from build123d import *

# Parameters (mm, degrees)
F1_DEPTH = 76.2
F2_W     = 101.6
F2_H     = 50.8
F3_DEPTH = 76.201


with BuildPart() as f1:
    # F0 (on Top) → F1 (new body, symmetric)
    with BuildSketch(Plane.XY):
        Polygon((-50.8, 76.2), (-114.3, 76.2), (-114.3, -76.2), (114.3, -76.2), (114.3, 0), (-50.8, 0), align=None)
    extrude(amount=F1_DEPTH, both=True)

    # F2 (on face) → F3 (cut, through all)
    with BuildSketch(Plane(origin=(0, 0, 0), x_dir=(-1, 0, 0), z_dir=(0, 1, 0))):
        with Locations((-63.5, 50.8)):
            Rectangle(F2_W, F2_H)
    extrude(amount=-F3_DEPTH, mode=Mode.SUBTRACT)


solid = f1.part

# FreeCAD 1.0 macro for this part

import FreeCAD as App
import Part
import Sketcher
from FreeCAD import Vector
Q = App.Units.Quantity


def add_polygon(sketch, points):
    """Adds a closed chain of lines whose ends are joined by coincident constraints."""
    first, n = sketch.GeometryCount, len(points)
    for a, b in zip(points, points[1:] + points[:1]):
        sketch.addGeometry(Part.LineSegment(App.Vector(*a, 0), App.Vector(*b, 0)), False)
    for i in range(n):
        sketch.addConstraint(Sketcher.Constraint("Coincident", first + i, 2, first + (i + 1) % n, 1))

doc = App.newDocument("Part")
params = doc.addObject("Spreadsheet::Sheet", "Params")
for row, (alias, value) in enumerate([
    ("sketch1_width", "9 in"),
    ("sketch1_height", "6 in"),
    ("sketch1_width2", "2.5 in"),
    ("pad1_length", "6 in"),
    ("sketch2_width", "4 in"),
    ("sketch2_height", "2 in"),
], start=1):
    params.set(f"A{row}", alias)
    params.set(f"B{row}", "=" + value)
    params.setAlias(f"B{row}", alias)

body = doc.addObject("PartDesign::Body", "Body")

sketch1 = body.newObject("Sketcher::SketchObject", "Sketch")
sketch1.AttachmentSupport = (doc.getObject("XY_Plane"), [""])
sketch1.MapMode = "FlatFace"
add_polygon(sketch1, [(-50.8, 76.2), (-114.3, 76.2), (-114.3, -76.2), (114.3, -76.2), (114.3, 0), (-50.8, 0)])
sketch1.addConstraint(Sketcher.Constraint("Horizontal", 0))
sketch1.addConstraint(Sketcher.Constraint("Vertical", 1))
sketch1.addConstraint(Sketcher.Constraint("Horizontal", 2))
sketch1.addConstraint(Sketcher.Constraint("Vertical", 3))
sketch1.addConstraint(Sketcher.Constraint("Horizontal", 4))
sketch1.addConstraint(Sketcher.Constraint("Vertical", 5))
sketch1.addConstraint(Sketcher.Constraint("Symmetric", 0, 2, 2, 2, -1, 1))
sketch1.addConstraint(Sketcher.Constraint("PointOnObject", 3, 2, -1))
sketch1.addConstraint(Sketcher.Constraint("DistanceX", 2, 1, 2, 2, Q("9 in")))
sketch1.addConstraint(Sketcher.Constraint("DistanceY", 1, 2, 1, 1, Q("6 in")))
sketch1.addConstraint(Sketcher.Constraint("DistanceX", 0, 2, 0, 1, Q("2.5 in")))
sketch1.setExpression("Constraints[14]", "Params.sketch1_width")
sketch1.setExpression("Constraints[15]", "Params.sketch1_height")
sketch1.setExpression("Constraints[16]", "Params.sketch1_width2")
pad1 = body.newObject("PartDesign::Pad", "Pad")
pad1.Profile = sketch1
pad1.setExpression("Length", "Params.pad1_length")
pad1.Midplane = True

sketch2 = body.newObject("Sketcher::SketchObject", "Sketch001")
sketch2.AttachmentSupport = (doc.getObject("XZ_Plane"), [""])
sketch2.MapMode = "FlatFace"
add_polygon(sketch2, [(114.3, 76.2), (114.3, 25.4), (12.7, 25.4), (12.7, 76.2)])
sketch2.addConstraint(Sketcher.Constraint("Vertical", 0))
sketch2.addConstraint(Sketcher.Constraint("Horizontal", 1))
sketch2.addConstraint(Sketcher.Constraint("Vertical", 2))
sketch2.addConstraint(Sketcher.Constraint("Horizontal", 3))
sketch2.addConstraint(Sketcher.Constraint("DistanceX", 1, 2, 1, 1, Q("4 in")))
sketch2.addConstraint(Sketcher.Constraint("DistanceY", 0, 2, 0, 1, Q("2 in")))
sketch2.addConstraint(Sketcher.Constraint("DistanceY", -1, 1, 0, 2, Q("1 in")))
sketch2.addConstraint(Sketcher.Constraint("DistanceX", -1, 1, 0, 2, Q("4.5 in")))
sketch2.setExpression("Constraints[8]", "Params.sketch2_width")
sketch2.setExpression("Constraints[9]", "Params.sketch2_height")
pocket1 = body.newObject("PartDesign::Pocket", "Pocket")
pocket1.Profile = sketch2
pocket1.Type = "ThroughAll"
pocket1.Reversed = True

doc.recompute()
